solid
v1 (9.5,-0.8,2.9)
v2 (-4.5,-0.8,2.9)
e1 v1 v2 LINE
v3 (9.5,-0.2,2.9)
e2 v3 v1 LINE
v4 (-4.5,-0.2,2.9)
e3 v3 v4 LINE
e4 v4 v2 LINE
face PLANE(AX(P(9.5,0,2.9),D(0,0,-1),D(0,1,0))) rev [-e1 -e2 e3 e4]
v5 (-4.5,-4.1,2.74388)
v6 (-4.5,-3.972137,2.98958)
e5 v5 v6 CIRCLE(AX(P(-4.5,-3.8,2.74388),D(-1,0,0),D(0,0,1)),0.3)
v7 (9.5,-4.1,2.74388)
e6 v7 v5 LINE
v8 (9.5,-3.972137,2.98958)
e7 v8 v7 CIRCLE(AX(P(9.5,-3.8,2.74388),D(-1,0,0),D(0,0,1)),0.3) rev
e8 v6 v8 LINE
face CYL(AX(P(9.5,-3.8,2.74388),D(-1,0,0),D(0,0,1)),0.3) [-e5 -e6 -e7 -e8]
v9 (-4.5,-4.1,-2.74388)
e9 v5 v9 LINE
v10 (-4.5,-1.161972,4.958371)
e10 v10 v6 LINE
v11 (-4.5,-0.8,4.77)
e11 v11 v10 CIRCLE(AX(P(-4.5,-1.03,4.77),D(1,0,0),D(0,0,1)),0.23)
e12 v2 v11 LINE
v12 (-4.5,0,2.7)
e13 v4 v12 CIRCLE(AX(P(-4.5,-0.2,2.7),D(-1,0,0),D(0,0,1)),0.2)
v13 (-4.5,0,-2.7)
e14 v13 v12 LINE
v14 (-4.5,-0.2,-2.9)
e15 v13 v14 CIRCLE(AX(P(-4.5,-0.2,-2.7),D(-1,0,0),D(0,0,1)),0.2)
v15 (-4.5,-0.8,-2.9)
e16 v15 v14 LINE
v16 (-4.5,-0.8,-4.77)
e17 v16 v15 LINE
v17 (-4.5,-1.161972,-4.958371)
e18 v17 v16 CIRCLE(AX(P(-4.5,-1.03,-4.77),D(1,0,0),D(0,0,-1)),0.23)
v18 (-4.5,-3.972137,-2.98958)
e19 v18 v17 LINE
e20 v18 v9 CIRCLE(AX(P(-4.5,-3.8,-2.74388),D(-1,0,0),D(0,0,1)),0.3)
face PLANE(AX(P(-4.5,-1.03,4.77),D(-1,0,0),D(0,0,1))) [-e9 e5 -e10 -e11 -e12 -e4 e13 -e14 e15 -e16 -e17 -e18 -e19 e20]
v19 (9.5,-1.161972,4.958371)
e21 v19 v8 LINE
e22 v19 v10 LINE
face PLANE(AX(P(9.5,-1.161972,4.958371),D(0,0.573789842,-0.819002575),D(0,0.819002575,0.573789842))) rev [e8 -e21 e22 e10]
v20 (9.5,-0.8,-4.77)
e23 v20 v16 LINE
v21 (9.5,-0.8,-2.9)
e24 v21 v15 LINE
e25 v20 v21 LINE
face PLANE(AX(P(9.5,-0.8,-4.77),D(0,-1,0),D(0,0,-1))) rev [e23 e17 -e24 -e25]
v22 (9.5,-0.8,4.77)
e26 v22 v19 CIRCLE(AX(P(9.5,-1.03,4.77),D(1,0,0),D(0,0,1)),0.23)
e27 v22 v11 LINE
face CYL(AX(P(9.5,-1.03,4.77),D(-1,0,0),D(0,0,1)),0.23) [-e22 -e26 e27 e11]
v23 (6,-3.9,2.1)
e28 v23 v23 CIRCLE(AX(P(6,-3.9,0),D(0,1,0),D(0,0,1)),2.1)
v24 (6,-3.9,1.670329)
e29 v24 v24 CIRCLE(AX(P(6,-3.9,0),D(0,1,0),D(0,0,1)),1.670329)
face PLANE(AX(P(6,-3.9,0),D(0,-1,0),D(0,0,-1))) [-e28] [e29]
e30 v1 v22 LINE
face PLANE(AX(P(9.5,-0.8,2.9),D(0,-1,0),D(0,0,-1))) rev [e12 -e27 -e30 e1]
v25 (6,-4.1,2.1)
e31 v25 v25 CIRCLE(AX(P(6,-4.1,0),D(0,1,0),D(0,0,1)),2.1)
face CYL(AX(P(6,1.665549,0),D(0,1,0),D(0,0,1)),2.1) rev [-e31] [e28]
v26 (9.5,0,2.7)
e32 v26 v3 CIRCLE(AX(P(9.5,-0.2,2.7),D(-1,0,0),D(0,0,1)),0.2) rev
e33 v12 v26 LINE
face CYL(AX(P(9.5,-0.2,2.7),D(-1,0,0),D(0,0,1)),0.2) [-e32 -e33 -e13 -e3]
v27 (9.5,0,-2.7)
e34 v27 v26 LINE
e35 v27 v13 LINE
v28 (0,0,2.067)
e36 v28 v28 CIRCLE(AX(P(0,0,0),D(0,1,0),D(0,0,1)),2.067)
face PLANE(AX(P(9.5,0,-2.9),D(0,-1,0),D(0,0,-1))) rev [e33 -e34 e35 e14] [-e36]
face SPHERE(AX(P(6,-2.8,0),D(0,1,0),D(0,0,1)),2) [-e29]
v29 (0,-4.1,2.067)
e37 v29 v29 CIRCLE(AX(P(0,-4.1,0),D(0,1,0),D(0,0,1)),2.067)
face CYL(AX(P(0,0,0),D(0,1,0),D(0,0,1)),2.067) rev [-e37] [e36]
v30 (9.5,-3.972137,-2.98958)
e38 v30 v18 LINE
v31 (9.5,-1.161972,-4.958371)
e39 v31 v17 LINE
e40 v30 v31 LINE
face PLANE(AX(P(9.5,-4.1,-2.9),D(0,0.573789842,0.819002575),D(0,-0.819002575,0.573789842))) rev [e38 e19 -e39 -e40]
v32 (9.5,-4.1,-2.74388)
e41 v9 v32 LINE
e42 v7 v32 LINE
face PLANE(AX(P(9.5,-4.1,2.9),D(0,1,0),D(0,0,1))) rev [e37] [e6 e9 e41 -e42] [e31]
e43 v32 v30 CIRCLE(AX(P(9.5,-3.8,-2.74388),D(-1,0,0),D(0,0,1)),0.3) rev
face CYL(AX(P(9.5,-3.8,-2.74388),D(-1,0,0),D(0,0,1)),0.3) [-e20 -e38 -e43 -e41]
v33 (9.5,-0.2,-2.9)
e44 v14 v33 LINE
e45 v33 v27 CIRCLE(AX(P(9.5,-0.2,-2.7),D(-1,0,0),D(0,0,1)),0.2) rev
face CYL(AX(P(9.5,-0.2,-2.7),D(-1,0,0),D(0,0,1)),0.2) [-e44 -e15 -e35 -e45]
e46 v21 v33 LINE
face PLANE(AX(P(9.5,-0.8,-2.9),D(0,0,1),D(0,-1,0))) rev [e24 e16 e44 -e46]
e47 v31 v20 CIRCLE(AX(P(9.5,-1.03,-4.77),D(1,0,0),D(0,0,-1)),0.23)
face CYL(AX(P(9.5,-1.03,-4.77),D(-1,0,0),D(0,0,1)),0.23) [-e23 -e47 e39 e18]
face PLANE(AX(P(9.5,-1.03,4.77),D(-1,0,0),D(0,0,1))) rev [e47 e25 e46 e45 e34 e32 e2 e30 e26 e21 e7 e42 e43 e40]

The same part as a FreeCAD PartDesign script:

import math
import FreeCAD as App
import Part
import Sketcher
Q = App.Units.Quantity


def edges_at(feature, points):
    """Names of the edges that pass closest to the given points."""
    edges = feature.Shape.Edges
    near = lambda p: min(range(len(edges)), key=lambda i: edges[i].distToShape(Part.Vertex(*p))[0])
    return sorted({f"Edge{near(p) + 1}" for p in points})


def add_polygon(sketch, points):
    """Adds a closed chain of lines whose ends are joined by coincident constraints."""
    first, n = sketch.GeometryCount, len(points)
    for a, b in zip(points, points[1:] + points[:1]):
        sketch.addGeometry(Part.LineSegment(App.Vector(*a, 0), App.Vector(*b, 0)), False)
    for i in range(n):
        sketch.addConstraint(Sketcher.Constraint("Coincident", first + i, 2, first + (i + 1) % n, 1))

doc = App.newDocument("Part")
params = doc.addObject("Spreadsheet::Sheet", "Params")
for row, (alias, value) in enumerate([
    ("sketch1_radius", "0.23 mm"),
    ("sketch1_width", "0.8 mm"),
    ("sketch1_height", "5.8 mm"),
    ("sketch1_height2", "1.87 mm"),
    ("pad1_length", "14 mm"),
    ("fillet_radius", "0.3 mm"),
    ("fillet2_radius", "0.2 mm"),
    ("sketch2_width", "0.2 mm"),
    ("sketch2_height", "2.1 mm"),
    ("groove_angle", "360 deg"),
    ("sketch3_radius", "2 mm"),
    ("sketch3_width", "0.9 mm"),
    ("revolution_angle", "360 deg"),
    ("hole_diameter", "4.134 mm"),
], start=1):
    params.set(f"A{row}", alias)
    params.set(f"B{row}", "=" + value)
    params.setAlias(f"B{row}", alias)

body = doc.addObject("PartDesign::Body", "Body")

# Sketch on YZ plane
sketch1 = body.newObject("Sketcher::SketchObject", "Sketch")
sketch1.AttachmentSupport = (doc.getObject("YZ_Plane"), [""])
sketch1.MapMode = "FlatFace"
sketch1.AttachmentOffset = App.Placement(App.Vector(0, 0, -4.5), App.Rotation())
sketch1.addGeometry([
    Part.LineSegment(App.Vector(0, -2.9, 0), App.Vector(0, 2.9, 0)),  # 0
    Part.LineSegment(App.Vector(0, 2.9, 0), App.Vector(-0.8, 2.9, 0)),  # 1
    Part.LineSegment(App.Vector(-0.8, 2.9, 0), App.Vector(-0.8, 4.77, 0)),  # 2
    Part.ArcOfCircle(Part.Circle(App.Vector(-1.03, 4.77, 0), App.Vector(0, 0, 1), 0.23), math.radians(0), math.radians(125)),  # 3
    Part.LineSegment(App.Vector(-1.16, 4.96, 0), App.Vector(-4.1, 2.9, 0)),  # 4
    Part.LineSegment(App.Vector(-4.1, 2.9, 0), App.Vector(-4.1, -2.9, 0)),  # 5
    Part.LineSegment(App.Vector(-4.1, -2.9, 0), App.Vector(-1.16, -4.96, 0)),  # 6
    Part.ArcOfCircle(Part.Circle(App.Vector(-1.03, -4.77, 0), App.Vector(0, 0, 1), 0.23), math.radians(-125), math.radians(0)),  # 7
    Part.LineSegment(App.Vector(-0.8, -4.77, 0), App.Vector(-0.8, -2.9, 0)),  # 8
    Part.LineSegment(App.Vector(-0.8, -2.9, 0), App.Vector(0, -2.9, 0)),  # 9
], False)
sketch1.addConstraint([
    Sketcher.Constraint("Coincident", 0, 2, 1, 1),
    Sketcher.Constraint("Coincident", 1, 2, 2, 1),
    Sketcher.Constraint("Tangent", 2, 2, 3, 1),
    Sketcher.Constraint("Tangent", 3, 2, 4, 1),
    Sketcher.Constraint("Coincident", 4, 2, 5, 1),
    Sketcher.Constraint("Coincident", 5, 2, 6, 1),
    Sketcher.Constraint("Tangent", 6, 2, 7, 1),
    Sketcher.Constraint("Tangent", 7, 2, 8, 1),
    Sketcher.Constraint("Coincident", 8, 2, 9, 1),
    Sketcher.Constraint("Coincident", 9, 2, 0, 1),
    Sketcher.Constraint("Vertical", 0),
    Sketcher.Constraint("Horizontal", 1),
    Sketcher.Constraint("Vertical", 2),
    Sketcher.Constraint("Vertical", 5),
    Sketcher.Constraint("Vertical", 8),
    Sketcher.Constraint("Horizontal", 9),
    Sketcher.Constraint("Equal", 3, 7),
    Sketcher.Constraint("Symmetric", 0, 2, 9, 2, -1, 1),
    Sketcher.Constraint("Symmetric", 3, 3, 7, 3, -1),
    Sketcher.Constraint("Horizontal", 1, 2, 4, 2),
    Sketcher.Constraint("Horizontal", 5, 2, 8, 2),
    Sketcher.Constraint("Radius", 3, Q("0.23 mm")),
    Sketcher.Constraint("DistanceX", 1, 2, 1, 1, Q("0.8 mm")),
    Sketcher.Constraint("DistanceY", 0, 1, 0, 2, Q("5.8 mm")),
    Sketcher.Constraint("DistanceY", 2, 1, 2, 2, Q("1.87 mm")),
    Sketcher.Constraint("DistanceX", 4, 2, -1, 1, Q("4.1 mm")),
])
sketch1.setExpression("Constraints[21]", "Params.sketch1_radius")
sketch1.setExpression("Constraints[22]", "Params.sketch1_width")
sketch1.setExpression("Constraints[23]", "Params.sketch1_height")
sketch1.setExpression("Constraints[24]", "Params.sketch1_height2")
pad1 = body.newObject("PartDesign::Pad", "Pad")
pad1.Profile = sketch1
pad1.setExpression("Length", "Params.pad1_length")
doc.recompute()

fillet = body.newObject("PartDesign::Fillet", "Fillet")
fillet.Base = (pad1, edges_at(pad1, [(2.5, -4.1, -2.9), (2.5, -4.1, 2.9)]))
fillet.setExpression("Radius", "Params.fillet_radius")
doc.recompute()

fillet2 = body.newObject("PartDesign::Fillet", "Fillet001")
fillet2.Base = (fillet, edges_at(fillet, [(2.5, 0, 2.9), (2.5, 0, -2.9)]))
fillet2.setExpression("Radius", "Params.fillet2_radius")

# Sketch on YZ plane
sketch2 = body.newObject("Sketcher::SketchObject", "Sketch001")
sketch2.AttachmentSupport = (doc.getObject("YZ_Plane"), [""])
sketch2.MapMode = "FlatFace"
sketch2.AttachmentOffset = App.Placement(App.Vector(0, 0, 6), App.Rotation())
add_polygon(sketch2, [(-3.9, 0), (-4.1, 0), (-4.1, -2.1), (-3.9, -2.1)])  # lines 0-3
sketch2.addConstraint([
    Sketcher.Constraint("Horizontal", 0),
    Sketcher.Constraint("Vertical", 1),
    Sketcher.Constraint("Horizontal", 2),
    Sketcher.Constraint("Vertical", 3),
    Sketcher.Constraint("PointOnObject", 0, 2, -1),
    Sketcher.Constraint("DistanceX", 0, 2, 0, 1, Q("0.2 mm")),
    Sketcher.Constraint("DistanceY", 1, 2, 1, 1, Q("2.1 mm")),
    Sketcher.Constraint("DistanceX", 0, 2, -1, 1, Q("4.1 mm")),
])
sketch2.setExpression("Constraints[9]", "Params.sketch2_width")
sketch2.setExpression("Constraints[10]", "Params.sketch2_height")
groove = body.newObject("PartDesign::Groove", "Groove")
groove.Profile = sketch2
groove.ReferenceAxis = (sketch2, ["H_Axis"])
groove.setExpression("Angle", "Params.groove_angle")

# Sketch on YZ plane
sketch3 = body.newObject("Sketcher::SketchObject", "Sketch002")
sketch3.AttachmentSupport = (doc.getObject("YZ_Plane"), [""])
sketch3.MapMode = "FlatFace"
sketch3.AttachmentOffset = App.Placement(App.Vector(0, 0, 6), App.Rotation())
sketch3.addGeometry([
    Part.LineSegment(App.Vector(-3.9, -1.7, 0), App.Vector(-3.9, 0, 0)),
    Part.LineSegment(App.Vector(-3.9, 0, 0), App.Vector(-4.8, 0, 0)),
    Part.ArcOfCircle(Part.Circle(App.Vector(-2.8, 0, 0), App.Vector(0, 0, 1), 2), math.radians(-180), math.radians(-123)),
], False)
sketch3.addConstraint([
    Sketcher.Constraint("Coincident", 0, 2, 1, 1),
    Sketcher.Constraint("Coincident", 1, 2, 2, 1),
    Sketcher.Constraint("Coincident", 2, 2, 0, 1),
    Sketcher.Constraint("Vertical", 0),
    Sketcher.Constraint("Horizontal", 1),
    Sketcher.Constraint("PointOnObject", 2, 3, -1),
    Sketcher.Constraint("PointOnObject", 0, 2, -1),
    Sketcher.Constraint("Radius", 2, Q("2 mm")),
    Sketcher.Constraint("DistanceX", 1, 2, 1, 1, Q("0.9 mm")),
    Sketcher.Constraint("DistanceX", 2, 3, -1, 1, Q("2.8 mm")),
])
sketch3.setExpression("Constraints[7]", "Params.sketch3_radius")
sketch3.setExpression("Constraints[8]", "Params.sketch3_width")
revolution = body.newObject("PartDesign::Revolution", "Revolution")
revolution.Profile = sketch3
revolution.ReferenceAxis = (sketch3, ["H_Axis"])
revolution.setExpression("Angle", "Params.revolution_angle")

# Sketch on XZ plane
sketch4 = body.newObject("Sketcher::SketchObject", "Sketch003")
sketch4.AttachmentSupport = (doc.getObject("XZ_Plane"), [""])
sketch4.MapMode = "FlatFace"
sketch4.addGeometry(Part.Circle(App.Vector(0, 0, 0), App.Vector(0, 0, 1), 2.1), False)
sketch4.addConstraint([
    Sketcher.Constraint("Coincident", 0, 3, -1, 1),
    Sketcher.Constraint("Diameter", 0, Q("4.134 mm")),
])
doc.recompute()
hole = body.newObject("PartDesign::Hole", "Hole")
hole.Profile = sketch4
hole.ThreadType = "None"
hole.setExpression("Diameter", "Params.hole_diameter")
hole.DepthType = "ThroughAll"
hole.Reversed = True

doc.recompute()
